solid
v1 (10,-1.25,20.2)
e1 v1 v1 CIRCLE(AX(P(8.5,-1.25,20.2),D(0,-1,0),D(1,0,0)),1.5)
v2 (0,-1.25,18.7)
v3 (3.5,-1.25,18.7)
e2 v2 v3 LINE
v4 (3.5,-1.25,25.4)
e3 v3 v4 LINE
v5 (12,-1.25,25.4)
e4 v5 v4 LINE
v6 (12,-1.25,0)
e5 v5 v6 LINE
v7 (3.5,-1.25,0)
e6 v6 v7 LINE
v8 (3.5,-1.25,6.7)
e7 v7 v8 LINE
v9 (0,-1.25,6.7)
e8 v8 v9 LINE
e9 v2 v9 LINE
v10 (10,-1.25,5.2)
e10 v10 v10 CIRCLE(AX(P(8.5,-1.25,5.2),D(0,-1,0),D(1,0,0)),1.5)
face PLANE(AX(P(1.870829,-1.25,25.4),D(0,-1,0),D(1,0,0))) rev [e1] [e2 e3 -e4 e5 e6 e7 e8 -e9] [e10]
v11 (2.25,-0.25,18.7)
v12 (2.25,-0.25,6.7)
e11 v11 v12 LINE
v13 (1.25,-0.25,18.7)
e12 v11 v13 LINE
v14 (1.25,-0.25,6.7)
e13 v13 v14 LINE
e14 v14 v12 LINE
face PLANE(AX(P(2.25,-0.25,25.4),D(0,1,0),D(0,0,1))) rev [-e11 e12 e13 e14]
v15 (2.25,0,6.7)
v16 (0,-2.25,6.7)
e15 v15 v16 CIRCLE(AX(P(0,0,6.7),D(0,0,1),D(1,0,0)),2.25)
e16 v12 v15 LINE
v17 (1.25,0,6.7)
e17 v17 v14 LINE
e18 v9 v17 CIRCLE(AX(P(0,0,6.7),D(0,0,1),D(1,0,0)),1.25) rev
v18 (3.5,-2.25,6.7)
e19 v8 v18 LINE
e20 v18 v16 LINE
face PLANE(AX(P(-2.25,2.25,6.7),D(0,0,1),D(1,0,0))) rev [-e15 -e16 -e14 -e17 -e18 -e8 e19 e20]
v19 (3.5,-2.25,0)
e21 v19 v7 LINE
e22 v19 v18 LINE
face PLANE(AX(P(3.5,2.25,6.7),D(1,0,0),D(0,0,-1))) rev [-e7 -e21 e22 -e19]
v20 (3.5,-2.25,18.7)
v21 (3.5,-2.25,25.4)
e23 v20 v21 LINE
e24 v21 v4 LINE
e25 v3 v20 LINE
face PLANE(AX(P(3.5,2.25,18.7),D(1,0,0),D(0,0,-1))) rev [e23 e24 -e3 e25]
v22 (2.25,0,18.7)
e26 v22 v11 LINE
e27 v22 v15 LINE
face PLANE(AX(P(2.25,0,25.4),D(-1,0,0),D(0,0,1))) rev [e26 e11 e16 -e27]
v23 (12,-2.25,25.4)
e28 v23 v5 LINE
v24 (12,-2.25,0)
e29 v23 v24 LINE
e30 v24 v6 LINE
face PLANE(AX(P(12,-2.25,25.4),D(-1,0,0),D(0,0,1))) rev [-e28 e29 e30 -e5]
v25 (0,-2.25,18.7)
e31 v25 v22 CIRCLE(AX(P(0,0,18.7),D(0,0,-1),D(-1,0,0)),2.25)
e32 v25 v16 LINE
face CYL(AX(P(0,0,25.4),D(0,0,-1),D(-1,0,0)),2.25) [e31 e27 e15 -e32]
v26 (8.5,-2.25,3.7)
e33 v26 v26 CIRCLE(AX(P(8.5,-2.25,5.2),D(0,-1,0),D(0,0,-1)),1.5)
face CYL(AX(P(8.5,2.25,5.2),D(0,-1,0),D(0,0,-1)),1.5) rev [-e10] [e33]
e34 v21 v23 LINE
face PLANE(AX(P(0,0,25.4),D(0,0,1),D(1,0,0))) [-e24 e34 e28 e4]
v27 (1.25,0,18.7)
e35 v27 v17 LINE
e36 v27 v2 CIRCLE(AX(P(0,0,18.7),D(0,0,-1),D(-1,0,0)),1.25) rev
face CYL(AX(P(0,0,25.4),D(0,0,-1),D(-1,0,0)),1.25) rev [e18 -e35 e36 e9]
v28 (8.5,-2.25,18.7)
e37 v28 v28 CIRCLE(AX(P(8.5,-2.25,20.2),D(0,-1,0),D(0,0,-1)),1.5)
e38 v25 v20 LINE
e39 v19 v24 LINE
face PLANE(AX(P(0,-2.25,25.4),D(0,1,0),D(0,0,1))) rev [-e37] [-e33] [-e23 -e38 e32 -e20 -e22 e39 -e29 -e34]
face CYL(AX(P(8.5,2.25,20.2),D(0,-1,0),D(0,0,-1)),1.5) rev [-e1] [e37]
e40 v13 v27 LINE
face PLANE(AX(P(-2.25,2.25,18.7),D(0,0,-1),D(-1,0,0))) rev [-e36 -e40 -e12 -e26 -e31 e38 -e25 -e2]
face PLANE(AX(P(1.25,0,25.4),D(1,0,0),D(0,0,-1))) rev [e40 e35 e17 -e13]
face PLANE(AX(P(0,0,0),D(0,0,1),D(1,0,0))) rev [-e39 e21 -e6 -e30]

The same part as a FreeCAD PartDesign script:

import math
import FreeCAD as App
import Part
import Sketcher

V = App.Vector
Q = App.Units.Quantity

doc = App.newDocument("Part")
body = doc.addObject("PartDesign::Body", "Body")

# Sketch on XY plane
sketch1 = body.newObject("Sketcher::SketchObject", "Sketch")
sketch1.AttachmentSupport = (doc.getObject("XY_Plane"), [""])
sketch1.MapMode = "FlatFace"
sketch1.addGeometry(Part.LineSegment(V(0, -2.25, 0), V(12, -2.25, 0)), False)
sketch1.addGeometry(Part.LineSegment(V(12, -2.25, 0), V(12, -1.25, 0)), False)
sketch1.addGeometry(Part.LineSegment(V(12, -1.25, 0), V(0, -1.25, 0)), False)
sketch1.addGeometry(Part.ArcOfCircle(Part.Circle(V(0, 0, 0), V(0, 0, 1), 1.25), math.radians(0), math.radians(270)), False)
sketch1.addGeometry(Part.LineSegment(V(1.25, 0, 0), V(1.25, -0.25, 0)), False)
sketch1.addGeometry(Part.LineSegment(V(1.25, -0.25, 0), V(2.25, -0.25, 0)), False)
sketch1.addGeometry(Part.LineSegment(V(2.25, -0.25, 0), V(2.25, 0, 0)), False)
sketch1.addGeometry(Part.ArcOfCircle(Part.Circle(V(0, 0, 0), V(0, 0, 1), 2.25), math.radians(0), math.radians(270)), False)
sketch1.addConstraint(Sketcher.Constraint("Coincident", 0, 2, 1, 1))
sketch1.addConstraint(Sketcher.Constraint("Coincident", 1, 2, 2, 1))
sketch1.addConstraint(Sketcher.Constraint("Tangent", 2, 2, 3, 2))
sketch1.addConstraint(Sketcher.Constraint("Tangent", 3, 1, 4, 1))
sketch1.addConstraint(Sketcher.Constraint("Coincident", 4, 2, 5, 1))
sketch1.addConstraint(Sketcher.Constraint("Coincident", 5, 2, 6, 1))
sketch1.addConstraint(Sketcher.Constraint("Tangent", 6, 2, 7, 1))
sketch1.addConstraint(Sketcher.Constraint("Tangent", 7, 2, 0, 1))
sketch1.addConstraint(Sketcher.Constraint("Horizontal", 0))
sketch1.addConstraint(Sketcher.Constraint("Vertical", 1))
sketch1.addConstraint(Sketcher.Constraint("Horizontal", 2))
sketch1.addConstraint(Sketcher.Constraint("Vertical", 4))
sketch1.addConstraint(Sketcher.Constraint("Horizontal", 5))
sketch1.addConstraint(Sketcher.Constraint("Vertical", 6))
sketch1.addConstraint(Sketcher.Constraint("Coincident", 3, 3, -1, 1))
sketch1.addConstraint(Sketcher.Constraint("Coincident", 7, 3, -1, 1))
sketch1.addConstraint(Sketcher.Constraint("DistanceX", 0, 1, 0, 2, Q("12 mm")))
sketch1.addConstraint(Sketcher.Constraint("DistanceX", 5, 1, 5, 2, Q("1 mm")))
sketch1.addConstraint(Sketcher.Constraint("Radius", 3, Q("1.25 mm")))
sketch1.addConstraint(Sketcher.Constraint("DistanceY", 2, 2, 4, 2, Q("1 mm")))
pad1 = body.newObject("PartDesign::Pad", "Pad")
pad1.Profile = sketch1
pad1.Length = 25.4

# Sketch on XZ plane
sketch2 = body.newObject("Sketcher::SketchObject", "Sketch001")
sketch2.AttachmentSupport = (doc.getObject("XZ_Plane"), [""])
sketch2.MapMode = "FlatFace"
sketch2.AttachmentOffset = App.Placement(V(0, 0, 2.25), App.Rotation())
sketch2.addGeometry(Part.Circle(V(8.5, 20.2, 0), V(0, 0, 1), 1.5), False)
sketch2.addGeometry(Part.Circle(V(8.5, 5.2, 0), V(0, 0, 1), 1.5), False)
sketch2.addGeometry(Part.LineSegment(V(-2.2, 25.4, 0), V(-2.2, 18.7, 0)), False)
sketch2.addGeometry(Part.LineSegment(V(-2.2, 18.7, 0), V(3.5, 18.7, 0)), False)
sketch2.addGeometry(Part.LineSegment(V(3.5, 18.7, 0), V(3.5, 25.4, 0)), False)
sketch2.addGeometry(Part.LineSegment(V(3.5, 25.4, 0), V(-2.2, 25.4, 0)), False)
sketch2.addGeometry(Part.LineSegment(V(-2.2, 6.7, 0), V(-2.2, 0, 0)), False)
sketch2.addGeometry(Part.LineSegment(V(-2.2, 0, 0), V(3.5, 0, 0)), False)
sketch2.addGeometry(Part.LineSegment(V(3.5, 0, 0), V(3.5, 6.7, 0)), False)
sketch2.addGeometry(Part.LineSegment(V(3.5, 6.7, 0), V(-2.2, 6.7, 0)), False)
sketch2.addConstraint(Sketcher.Constraint("Coincident", 2, 2, 3, 1))
sketch2.addConstraint(Sketcher.Constraint("Coincident", 3, 2, 4, 1))
sketch2.addConstraint(Sketcher.Constraint("Coincident", 4, 2, 5, 1))
sketch2.addConstraint(Sketcher.Constraint("Coincident", 5, 2, 2, 1))
sketch2.addConstraint(Sketcher.Constraint("Coincident", 6, 2, 7, 1))
sketch2.addConstraint(Sketcher.Constraint("Coincident", 7, 2, 8, 1))
sketch2.addConstraint(Sketcher.Constraint("Coincident", 8, 2, 9, 1))
sketch2.addConstraint(Sketcher.Constraint("Coincident", 9, 2, 6, 1))
sketch2.addConstraint(Sketcher.Constraint("Vertical", 2))
sketch2.addConstraint(Sketcher.Constraint("Horizontal", 3))
sketch2.addConstraint(Sketcher.Constraint("Vertical", 4))
sketch2.addConstraint(Sketcher.Constraint("Horizontal", 5))
sketch2.addConstraint(Sketcher.Constraint("Vertical", 6))
sketch2.addConstraint(Sketcher.Constraint("Horizontal", 7))
sketch2.addConstraint(Sketcher.Constraint("Vertical", 8))
sketch2.addConstraint(Sketcher.Constraint("Horizontal", 9))
sketch2.addConstraint(Sketcher.Constraint("Equal", 0, 1))
sketch2.addConstraint(Sketcher.Constraint("PointOnObject", 6, 2, -1))
sketch2.addConstraint(Sketcher.Constraint("Vertical", 0, 3, 1, 3))
sketch2.addConstraint(Sketcher.Constraint("Vertical", 5, 2, 6, 2))
sketch2.addConstraint(Sketcher.Constraint("Vertical", 4, 2, 7, 2))
sketch2.addConstraint(Sketcher.Constraint("Equal", 4, 6))
sketch2.addConstraint(Sketcher.Constraint("Diameter", 0, Q("3 mm")))
sketch2.addConstraint(Sketcher.Constraint("DistanceY", 2, 2, 2, 1, Q("6.7 mm")))
sketch2.addConstraint(Sketcher.Constraint("DistanceY", 1, 3, 0, 3, Q("15 mm")))
sketch2.addConstraint(Sketcher.Constraint("DistanceX", 3, 2, 0, 3, Q("5 mm")))
sketch2.addConstraint(Sketcher.Constraint("DistanceY", 8, 2, 3, 2, Q("12 mm")))
sketch2.addConstraint(Sketcher.Constraint("DistanceX", 3, 1, 3, 2, Q("5.75 mm")))
sketch2.addConstraint(Sketcher.Constraint("DistanceX", -1, 1, 0, 3, Q("8.5 mm")))
sketch2.addConstraint(Sketcher.Constraint("DistanceY", -1, 1, 0, 3, Q("20.2 mm")))
pocket1 = body.newObject("PartDesign::Pocket", "Pocket")
pocket1.Profile = sketch2
pocket1.Type = "ThroughAll"

doc.recompute()
